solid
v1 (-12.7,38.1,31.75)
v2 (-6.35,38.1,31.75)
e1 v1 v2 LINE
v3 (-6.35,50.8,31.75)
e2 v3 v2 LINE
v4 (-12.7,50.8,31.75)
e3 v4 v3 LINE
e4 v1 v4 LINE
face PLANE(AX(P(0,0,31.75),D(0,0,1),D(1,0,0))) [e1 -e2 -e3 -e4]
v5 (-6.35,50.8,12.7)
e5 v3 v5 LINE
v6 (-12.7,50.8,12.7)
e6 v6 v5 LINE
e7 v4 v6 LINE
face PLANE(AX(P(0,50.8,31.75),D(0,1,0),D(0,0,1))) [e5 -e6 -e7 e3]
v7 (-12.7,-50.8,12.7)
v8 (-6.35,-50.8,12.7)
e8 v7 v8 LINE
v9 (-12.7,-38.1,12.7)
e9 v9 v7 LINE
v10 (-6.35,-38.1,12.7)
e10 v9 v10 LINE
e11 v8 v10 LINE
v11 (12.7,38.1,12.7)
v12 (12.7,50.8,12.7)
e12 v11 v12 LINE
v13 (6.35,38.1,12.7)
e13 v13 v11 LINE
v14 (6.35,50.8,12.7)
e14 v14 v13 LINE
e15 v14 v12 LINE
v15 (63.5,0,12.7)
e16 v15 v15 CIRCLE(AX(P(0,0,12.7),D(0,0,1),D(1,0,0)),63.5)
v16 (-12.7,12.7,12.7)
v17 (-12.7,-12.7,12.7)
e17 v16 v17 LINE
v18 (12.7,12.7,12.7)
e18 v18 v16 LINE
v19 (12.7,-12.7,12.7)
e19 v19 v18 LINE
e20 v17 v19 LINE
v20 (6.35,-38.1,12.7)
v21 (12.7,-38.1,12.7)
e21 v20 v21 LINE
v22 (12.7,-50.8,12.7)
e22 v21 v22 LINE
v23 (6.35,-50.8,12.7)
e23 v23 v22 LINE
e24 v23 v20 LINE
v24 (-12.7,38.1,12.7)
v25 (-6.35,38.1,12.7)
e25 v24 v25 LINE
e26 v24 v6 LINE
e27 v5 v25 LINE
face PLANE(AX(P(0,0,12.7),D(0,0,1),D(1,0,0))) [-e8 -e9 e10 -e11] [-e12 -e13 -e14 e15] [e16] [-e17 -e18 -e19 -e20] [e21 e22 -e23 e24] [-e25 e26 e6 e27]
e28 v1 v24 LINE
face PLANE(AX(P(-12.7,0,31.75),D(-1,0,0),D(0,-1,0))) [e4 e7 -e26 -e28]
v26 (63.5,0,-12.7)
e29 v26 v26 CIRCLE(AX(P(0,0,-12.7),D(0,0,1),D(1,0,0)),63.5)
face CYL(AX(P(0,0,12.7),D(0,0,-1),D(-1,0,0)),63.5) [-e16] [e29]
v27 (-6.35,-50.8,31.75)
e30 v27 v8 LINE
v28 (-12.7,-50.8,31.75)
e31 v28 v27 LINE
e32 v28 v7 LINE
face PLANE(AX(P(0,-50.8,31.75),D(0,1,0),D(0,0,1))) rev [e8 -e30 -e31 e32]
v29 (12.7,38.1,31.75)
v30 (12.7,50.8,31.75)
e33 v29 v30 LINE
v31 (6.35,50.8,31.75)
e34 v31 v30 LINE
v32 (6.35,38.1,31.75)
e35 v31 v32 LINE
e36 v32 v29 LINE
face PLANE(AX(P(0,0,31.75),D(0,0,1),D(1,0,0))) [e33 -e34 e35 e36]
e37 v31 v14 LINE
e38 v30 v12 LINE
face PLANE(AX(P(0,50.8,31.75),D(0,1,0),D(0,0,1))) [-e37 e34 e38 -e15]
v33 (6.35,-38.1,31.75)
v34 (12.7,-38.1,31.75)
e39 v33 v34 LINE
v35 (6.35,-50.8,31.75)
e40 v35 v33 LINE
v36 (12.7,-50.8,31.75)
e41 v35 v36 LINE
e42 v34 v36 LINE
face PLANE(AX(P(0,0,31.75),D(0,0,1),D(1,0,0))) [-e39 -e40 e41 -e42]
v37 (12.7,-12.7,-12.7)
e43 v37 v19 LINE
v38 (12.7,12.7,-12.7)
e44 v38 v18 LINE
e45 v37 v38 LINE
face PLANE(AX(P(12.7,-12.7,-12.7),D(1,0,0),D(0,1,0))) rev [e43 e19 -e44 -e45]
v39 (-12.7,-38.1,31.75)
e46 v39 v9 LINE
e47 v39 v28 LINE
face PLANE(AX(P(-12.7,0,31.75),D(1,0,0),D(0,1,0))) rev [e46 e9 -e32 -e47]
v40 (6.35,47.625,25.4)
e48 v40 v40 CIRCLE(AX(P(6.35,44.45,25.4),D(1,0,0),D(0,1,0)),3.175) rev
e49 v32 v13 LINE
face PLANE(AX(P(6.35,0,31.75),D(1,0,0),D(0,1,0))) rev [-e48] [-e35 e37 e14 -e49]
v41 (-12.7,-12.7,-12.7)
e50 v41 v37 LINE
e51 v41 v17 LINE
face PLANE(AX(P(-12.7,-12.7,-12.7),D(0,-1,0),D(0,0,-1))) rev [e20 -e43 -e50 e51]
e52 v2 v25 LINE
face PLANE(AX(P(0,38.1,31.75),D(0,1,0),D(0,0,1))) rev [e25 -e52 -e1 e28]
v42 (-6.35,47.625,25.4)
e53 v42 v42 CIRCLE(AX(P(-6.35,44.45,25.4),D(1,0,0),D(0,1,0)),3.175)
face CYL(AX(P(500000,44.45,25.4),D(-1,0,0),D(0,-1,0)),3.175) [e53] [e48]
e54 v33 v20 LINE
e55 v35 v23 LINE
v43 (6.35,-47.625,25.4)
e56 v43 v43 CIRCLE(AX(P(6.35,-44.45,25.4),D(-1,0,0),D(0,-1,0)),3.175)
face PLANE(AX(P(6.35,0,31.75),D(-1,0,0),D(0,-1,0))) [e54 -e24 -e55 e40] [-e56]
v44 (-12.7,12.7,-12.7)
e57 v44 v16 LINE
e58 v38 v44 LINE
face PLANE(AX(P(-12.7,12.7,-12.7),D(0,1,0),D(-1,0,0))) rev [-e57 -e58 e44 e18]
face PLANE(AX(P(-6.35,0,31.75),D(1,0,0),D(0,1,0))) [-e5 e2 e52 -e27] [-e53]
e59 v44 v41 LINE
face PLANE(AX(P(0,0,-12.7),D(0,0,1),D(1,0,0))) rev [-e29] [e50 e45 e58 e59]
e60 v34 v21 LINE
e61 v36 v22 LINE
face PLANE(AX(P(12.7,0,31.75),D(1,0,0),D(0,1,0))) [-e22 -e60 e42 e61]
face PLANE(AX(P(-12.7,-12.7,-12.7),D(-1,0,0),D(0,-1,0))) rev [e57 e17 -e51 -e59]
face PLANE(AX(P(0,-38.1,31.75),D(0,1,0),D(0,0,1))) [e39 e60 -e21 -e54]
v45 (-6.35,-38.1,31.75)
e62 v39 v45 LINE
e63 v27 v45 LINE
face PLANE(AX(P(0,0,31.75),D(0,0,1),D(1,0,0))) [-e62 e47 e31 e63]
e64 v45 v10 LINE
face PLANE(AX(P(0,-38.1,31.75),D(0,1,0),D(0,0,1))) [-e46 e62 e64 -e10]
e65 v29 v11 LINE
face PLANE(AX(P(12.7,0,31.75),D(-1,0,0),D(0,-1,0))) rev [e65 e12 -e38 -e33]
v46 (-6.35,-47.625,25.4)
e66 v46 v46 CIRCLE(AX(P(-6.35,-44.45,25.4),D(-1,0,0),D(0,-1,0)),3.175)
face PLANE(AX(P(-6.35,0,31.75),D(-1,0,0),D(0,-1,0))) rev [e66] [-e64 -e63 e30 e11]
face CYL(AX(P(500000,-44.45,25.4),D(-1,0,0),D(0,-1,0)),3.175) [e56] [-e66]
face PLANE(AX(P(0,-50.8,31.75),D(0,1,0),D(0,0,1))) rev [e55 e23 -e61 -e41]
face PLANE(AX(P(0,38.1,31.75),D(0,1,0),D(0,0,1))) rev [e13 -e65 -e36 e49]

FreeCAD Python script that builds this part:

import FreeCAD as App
import Part
import Sketcher

V = App.Vector
Q = App.Units.Quantity


def add_polygon(sketch, points):
    """Adds a closed chain of lines whose ends are joined by coincident constraints."""
    first, n = sketch.GeometryCount, len(points)
    for a, b in zip(points, points[1:] + points[:1]):
        sketch.addGeometry(Part.LineSegment(App.Vector(*a, 0), App.Vector(*b, 0)), False)
    for i in range(n):
        sketch.addConstraint(Sketcher.Constraint("Coincident", first + i, 2, first + (i + 1) % n, 1))

doc = App.newDocument("Part")
body = doc.addObject("PartDesign::Body", "Body")

sketch1 = body.newObject("Sketcher::SketchObject", "Sketch")
sketch1.AttachmentSupport = (doc.getObject("XY_Plane"), [""])
sketch1.MapMode = "FlatFace"
sketch1.addGeometry(Part.Circle(V(0, 0, 0), V(0, 0, 1), 64), False)
sketch1.addConstraint([
    Sketcher.Constraint("Coincident", 0, 3, -1, 1),
    Sketcher.Constraint("Diameter", 0, Q("5 in")),
])
pad1 = body.newObject("PartDesign::Pad", "Pad")
pad1.Profile = sketch1
pad1.Length = Q("1 in")
pad1.Midplane = True

sketch2 = body.newObject("Sketcher::SketchObject", "Sketch001")
sketch2.AttachmentSupport = (doc.getObject("XY_Plane"), [""])
sketch2.MapMode = "FlatFace"
sketch2.AttachmentOffset = App.Placement(V(0, 0, 0.5 * 25.4), App.Rotation())
add_polygon(sketch2, [(-13, 51), (-13, 38), (-6, 38), (-6, 51)])
add_polygon(sketch2, [(6, 51), (6, 38), (13, 38), (13, 51)])
sketch2.addConstraint([
    Sketcher.Constraint("Vertical", 0),
    Sketcher.Constraint("Horizontal", 1),
    Sketcher.Constraint("Vertical", 2),
    Sketcher.Constraint("Horizontal", 3),
    Sketcher.Constraint("Vertical", 4),
    Sketcher.Constraint("Horizontal", 5),
    Sketcher.Constraint("Vertical", 6),
    Sketcher.Constraint("Horizontal", 7),
    Sketcher.Constraint("Symmetric", 1, 2, 4, 2, -2),
    Sketcher.Constraint("Symmetric", 3, 2, 6, 2, -2),
    Sketcher.Constraint("DistanceY", 0, 2, 0, 1, Q("0.5 in")),
    Sketcher.Constraint("DistanceY", -1, 1, 2, 2, Q("2 in")),
    Sketcher.Constraint("DistanceX", 0, 2, 5, 2, Q("1 in")),
    Sketcher.Constraint("DistanceX", 1, 1, 1, 2, Q("0.25 in")),
])
pad2 = body.newObject("PartDesign::Pad", "Pad001")
pad2.Profile = sketch2
pad2.Length = Q("0.75 in")

sketch3 = body.newObject("Sketcher::SketchObject", "Sketch002")
sketch3.AttachmentSupport = (doc.getObject("YZ_Plane"), [""])
sketch3.MapMode = "FlatFace"
sketch3.AttachmentOffset = App.Placement(V(0, 0, -0.25 * 25.4), App.Rotation())
sketch3.addGeometry(Part.Circle(V(44.5, 25.4, 0), V(0, 0, 1), 3.2), False)
sketch3.addConstraint([
    Sketcher.Constraint("Diameter", 0, Q("0.25 in")),
    Sketcher.Constraint("DistanceY", -1, 1, 0, 3, Q("1 in")),
    Sketcher.Constraint("DistanceX", -1, 1, 0, 3, Q("1.75 in")),
])
pad3 = body.newObject("PartDesign::Pad", "Pad002")
pad3.Profile = sketch3
pad3.Length = Q("0.5 in")
doc.recompute()

mirrored = body.newObject("PartDesign::Mirrored", "Mirrored")
mirrored.Originals = [pad2, pad3]
mirrored.MirrorPlane = (doc.getObject("XZ_Plane"), [""])
body.Tip = mirrored

sketch4 = body.newObject("Sketcher::SketchObject", "Sketch003")
sketch4.AttachmentSupport = (doc.getObject("XY_Plane"), [""])
sketch4.MapMode = "FlatFace"
sketch4.AttachmentOffset = App.Placement(V(0, 0, 0.5 * 25.4), App.Rotation())
add_polygon(sketch4, [(-13, 13), (-13, -13), (13, -13), (13, 13)])
sketch4.addConstraint([
    Sketcher.Constraint("Vertical", 0),
    Sketcher.Constraint("Horizontal", 1),
    Sketcher.Constraint("Vertical", 2),
    Sketcher.Constraint("Horizontal", 3),
    Sketcher.Constraint("Symmetric", 0, 2, 2, 2, -1, 1),
    Sketcher.Constraint("Equal", 3, 0),
    Sketcher.Constraint("DistanceX", 1, 1, 1, 2, Q("1 in")),
])
pocket1 = body.newObject("PartDesign::Pocket", "Pocket")
pocket1.Profile = sketch4
pocket1.Type = "ThroughAll"

doc.recompute()
